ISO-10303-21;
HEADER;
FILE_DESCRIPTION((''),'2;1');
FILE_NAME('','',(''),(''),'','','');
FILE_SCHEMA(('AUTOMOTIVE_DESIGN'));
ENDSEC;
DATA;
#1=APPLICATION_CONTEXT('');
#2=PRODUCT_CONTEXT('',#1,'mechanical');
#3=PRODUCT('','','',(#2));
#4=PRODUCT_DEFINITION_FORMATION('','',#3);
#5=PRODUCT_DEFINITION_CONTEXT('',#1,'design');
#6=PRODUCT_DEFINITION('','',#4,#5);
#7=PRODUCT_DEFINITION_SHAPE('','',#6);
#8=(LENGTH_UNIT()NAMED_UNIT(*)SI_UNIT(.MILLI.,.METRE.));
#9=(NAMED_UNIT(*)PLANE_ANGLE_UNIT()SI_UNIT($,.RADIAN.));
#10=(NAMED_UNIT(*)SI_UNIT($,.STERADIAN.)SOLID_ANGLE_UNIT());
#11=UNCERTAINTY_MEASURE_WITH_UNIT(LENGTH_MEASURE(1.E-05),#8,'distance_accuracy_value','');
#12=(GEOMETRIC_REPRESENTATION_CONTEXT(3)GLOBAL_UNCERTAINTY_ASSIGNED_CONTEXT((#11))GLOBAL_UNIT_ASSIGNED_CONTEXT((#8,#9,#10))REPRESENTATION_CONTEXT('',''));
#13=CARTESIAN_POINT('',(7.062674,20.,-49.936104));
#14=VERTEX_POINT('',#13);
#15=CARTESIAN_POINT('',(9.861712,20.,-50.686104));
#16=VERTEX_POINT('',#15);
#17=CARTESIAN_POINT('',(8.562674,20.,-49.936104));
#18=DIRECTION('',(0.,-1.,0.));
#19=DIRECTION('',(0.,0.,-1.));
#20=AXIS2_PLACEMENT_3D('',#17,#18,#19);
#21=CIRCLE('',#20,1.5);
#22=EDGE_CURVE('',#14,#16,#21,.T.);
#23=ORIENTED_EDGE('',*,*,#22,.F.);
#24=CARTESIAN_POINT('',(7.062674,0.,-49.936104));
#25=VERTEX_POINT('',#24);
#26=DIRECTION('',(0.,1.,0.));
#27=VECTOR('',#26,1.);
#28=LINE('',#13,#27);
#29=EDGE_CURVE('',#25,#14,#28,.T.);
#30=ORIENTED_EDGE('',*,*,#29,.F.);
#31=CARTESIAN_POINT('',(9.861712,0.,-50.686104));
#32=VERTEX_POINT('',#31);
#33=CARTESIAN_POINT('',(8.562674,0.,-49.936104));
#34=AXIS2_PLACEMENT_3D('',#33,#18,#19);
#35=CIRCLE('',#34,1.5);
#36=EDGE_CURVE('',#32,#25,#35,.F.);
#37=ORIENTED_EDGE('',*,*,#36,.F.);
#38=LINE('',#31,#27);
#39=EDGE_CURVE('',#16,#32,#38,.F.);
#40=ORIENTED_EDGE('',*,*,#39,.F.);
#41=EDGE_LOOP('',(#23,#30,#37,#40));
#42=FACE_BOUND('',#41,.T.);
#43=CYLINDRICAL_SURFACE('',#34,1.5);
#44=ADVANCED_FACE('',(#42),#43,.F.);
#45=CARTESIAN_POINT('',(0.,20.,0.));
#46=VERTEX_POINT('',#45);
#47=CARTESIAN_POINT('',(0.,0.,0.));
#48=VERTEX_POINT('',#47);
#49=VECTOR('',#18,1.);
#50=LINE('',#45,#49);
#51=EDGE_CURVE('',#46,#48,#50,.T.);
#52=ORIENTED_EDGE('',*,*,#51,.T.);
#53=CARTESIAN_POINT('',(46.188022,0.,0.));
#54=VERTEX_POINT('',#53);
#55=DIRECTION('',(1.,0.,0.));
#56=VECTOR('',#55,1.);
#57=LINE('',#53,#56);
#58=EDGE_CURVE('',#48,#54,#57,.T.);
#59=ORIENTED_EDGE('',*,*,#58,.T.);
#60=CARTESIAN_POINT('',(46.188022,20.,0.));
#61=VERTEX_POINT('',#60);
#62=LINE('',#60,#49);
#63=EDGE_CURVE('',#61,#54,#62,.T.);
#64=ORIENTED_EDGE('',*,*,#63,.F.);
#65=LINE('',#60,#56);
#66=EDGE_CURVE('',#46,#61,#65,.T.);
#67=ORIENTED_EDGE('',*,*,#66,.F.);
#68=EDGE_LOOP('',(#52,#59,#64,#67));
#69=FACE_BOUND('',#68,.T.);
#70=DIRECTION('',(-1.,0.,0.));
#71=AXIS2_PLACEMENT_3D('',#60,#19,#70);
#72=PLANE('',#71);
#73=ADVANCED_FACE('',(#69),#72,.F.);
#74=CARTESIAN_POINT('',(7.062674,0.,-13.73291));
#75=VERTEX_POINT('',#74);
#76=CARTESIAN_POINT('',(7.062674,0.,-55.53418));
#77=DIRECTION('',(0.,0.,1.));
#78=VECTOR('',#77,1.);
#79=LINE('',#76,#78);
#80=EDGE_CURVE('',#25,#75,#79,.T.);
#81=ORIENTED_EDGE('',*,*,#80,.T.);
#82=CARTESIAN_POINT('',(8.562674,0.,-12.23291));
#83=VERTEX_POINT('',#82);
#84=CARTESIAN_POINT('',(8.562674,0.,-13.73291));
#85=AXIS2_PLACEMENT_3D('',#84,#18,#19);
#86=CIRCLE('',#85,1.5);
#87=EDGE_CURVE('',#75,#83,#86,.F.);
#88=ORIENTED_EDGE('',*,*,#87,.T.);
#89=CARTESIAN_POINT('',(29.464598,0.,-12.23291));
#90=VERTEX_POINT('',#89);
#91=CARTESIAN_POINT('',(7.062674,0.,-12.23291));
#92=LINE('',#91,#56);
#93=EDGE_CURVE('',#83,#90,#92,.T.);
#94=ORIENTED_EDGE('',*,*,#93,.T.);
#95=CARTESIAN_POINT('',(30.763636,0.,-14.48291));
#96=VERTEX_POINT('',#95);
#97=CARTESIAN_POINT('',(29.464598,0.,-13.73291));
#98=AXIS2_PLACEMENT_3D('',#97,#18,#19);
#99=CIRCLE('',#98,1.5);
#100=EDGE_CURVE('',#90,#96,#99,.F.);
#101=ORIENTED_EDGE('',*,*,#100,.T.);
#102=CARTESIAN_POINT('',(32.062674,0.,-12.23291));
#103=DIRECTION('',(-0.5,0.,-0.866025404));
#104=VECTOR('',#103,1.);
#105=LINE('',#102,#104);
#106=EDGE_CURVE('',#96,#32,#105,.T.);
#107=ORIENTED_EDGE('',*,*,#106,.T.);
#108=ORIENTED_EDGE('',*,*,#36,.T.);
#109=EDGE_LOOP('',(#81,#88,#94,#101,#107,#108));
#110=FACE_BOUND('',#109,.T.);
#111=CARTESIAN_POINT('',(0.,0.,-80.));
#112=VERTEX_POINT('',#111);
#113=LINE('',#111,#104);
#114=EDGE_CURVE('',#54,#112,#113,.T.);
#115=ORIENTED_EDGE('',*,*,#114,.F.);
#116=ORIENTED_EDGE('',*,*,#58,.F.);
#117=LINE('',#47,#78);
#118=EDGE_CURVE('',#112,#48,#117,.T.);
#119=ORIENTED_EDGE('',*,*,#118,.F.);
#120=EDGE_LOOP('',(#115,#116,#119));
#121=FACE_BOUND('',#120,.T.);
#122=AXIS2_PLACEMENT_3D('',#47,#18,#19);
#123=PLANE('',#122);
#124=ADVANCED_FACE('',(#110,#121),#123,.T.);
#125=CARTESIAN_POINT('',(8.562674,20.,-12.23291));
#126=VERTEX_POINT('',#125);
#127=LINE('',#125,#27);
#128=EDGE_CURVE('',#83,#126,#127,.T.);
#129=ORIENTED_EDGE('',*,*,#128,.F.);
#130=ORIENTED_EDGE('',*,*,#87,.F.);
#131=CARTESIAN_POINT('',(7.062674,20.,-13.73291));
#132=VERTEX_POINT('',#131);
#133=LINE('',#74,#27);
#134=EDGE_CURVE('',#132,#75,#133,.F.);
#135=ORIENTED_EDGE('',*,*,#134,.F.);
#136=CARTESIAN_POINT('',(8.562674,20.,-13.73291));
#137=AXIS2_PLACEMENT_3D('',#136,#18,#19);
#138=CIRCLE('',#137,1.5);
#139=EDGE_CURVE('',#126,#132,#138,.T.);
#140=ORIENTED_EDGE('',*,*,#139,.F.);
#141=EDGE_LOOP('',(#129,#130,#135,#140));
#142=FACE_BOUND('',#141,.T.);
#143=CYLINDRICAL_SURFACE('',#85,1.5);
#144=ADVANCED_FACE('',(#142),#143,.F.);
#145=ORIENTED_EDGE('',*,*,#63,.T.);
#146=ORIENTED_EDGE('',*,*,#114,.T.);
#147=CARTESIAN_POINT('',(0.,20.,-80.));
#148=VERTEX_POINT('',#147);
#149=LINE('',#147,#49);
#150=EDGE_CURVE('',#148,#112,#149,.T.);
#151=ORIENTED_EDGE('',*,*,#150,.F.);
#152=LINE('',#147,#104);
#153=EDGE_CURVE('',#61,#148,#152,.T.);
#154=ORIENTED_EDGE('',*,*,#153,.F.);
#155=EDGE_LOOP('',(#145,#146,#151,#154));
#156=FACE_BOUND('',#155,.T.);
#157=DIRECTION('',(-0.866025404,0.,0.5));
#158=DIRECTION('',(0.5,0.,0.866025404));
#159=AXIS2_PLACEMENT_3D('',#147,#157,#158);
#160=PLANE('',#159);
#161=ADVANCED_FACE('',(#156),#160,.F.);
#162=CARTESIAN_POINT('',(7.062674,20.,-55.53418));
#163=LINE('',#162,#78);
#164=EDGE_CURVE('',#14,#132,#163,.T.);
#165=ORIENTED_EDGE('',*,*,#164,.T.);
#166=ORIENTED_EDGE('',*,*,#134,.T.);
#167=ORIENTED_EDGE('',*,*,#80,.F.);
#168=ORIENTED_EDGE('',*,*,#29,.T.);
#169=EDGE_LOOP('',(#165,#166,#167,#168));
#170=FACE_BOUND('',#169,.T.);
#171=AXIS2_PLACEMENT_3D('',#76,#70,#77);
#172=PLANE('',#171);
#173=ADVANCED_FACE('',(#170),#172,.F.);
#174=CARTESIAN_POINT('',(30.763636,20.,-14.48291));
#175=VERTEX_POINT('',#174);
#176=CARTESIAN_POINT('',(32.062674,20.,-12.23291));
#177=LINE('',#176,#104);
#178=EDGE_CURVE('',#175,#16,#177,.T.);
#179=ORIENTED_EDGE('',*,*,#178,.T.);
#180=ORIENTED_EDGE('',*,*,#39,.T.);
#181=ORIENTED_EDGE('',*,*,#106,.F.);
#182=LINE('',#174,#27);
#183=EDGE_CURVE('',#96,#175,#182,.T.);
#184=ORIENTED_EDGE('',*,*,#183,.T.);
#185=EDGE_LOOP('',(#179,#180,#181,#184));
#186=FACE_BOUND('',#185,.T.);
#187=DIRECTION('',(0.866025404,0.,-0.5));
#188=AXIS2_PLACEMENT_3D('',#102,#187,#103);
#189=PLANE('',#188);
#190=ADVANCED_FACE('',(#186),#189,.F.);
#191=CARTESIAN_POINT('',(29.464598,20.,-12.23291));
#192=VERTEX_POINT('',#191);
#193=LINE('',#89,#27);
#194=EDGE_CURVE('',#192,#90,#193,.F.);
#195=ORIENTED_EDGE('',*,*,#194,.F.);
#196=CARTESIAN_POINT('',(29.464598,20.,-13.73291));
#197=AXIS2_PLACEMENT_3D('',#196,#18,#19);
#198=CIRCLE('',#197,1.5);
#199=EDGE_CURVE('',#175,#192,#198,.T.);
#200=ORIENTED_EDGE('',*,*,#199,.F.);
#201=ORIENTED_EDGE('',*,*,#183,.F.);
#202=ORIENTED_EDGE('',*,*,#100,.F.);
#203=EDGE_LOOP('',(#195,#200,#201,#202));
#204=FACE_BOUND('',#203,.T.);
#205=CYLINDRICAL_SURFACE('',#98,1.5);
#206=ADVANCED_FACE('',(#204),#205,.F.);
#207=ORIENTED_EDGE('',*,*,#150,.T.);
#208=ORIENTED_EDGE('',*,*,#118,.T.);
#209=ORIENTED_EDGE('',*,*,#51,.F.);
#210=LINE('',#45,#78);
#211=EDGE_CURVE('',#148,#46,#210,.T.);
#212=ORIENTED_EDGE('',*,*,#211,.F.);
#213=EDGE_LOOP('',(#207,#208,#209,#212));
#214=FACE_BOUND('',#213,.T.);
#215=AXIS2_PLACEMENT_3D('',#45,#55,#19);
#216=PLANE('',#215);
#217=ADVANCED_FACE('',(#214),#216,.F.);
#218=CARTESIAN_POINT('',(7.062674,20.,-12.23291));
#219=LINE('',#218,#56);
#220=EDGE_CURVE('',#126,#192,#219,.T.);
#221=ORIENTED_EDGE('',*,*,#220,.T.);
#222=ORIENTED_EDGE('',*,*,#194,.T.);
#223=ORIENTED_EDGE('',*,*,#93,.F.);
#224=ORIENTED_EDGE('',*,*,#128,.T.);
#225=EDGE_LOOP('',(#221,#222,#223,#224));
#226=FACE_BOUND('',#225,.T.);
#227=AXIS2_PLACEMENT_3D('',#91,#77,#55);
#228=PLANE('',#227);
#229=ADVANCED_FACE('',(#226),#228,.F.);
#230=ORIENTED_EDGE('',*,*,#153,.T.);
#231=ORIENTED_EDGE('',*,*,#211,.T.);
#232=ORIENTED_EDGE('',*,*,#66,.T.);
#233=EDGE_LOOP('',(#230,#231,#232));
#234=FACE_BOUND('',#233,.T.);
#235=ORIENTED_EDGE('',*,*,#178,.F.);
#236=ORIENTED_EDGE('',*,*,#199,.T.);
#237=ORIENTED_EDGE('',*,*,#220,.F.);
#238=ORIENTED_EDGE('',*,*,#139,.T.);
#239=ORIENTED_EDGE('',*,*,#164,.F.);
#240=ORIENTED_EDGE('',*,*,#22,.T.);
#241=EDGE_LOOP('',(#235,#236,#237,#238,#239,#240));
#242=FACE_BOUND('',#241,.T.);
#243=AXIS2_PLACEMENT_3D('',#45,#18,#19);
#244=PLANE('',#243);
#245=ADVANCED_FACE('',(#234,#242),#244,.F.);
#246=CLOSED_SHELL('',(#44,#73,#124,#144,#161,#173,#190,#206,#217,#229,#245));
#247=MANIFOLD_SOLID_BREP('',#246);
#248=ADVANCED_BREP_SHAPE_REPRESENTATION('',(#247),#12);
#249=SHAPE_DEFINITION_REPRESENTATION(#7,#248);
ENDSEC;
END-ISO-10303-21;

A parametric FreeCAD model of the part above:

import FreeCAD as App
import Part
import Sketcher
from FreeCAD import Vector
Q = App.Units.Quantity


def edges_at(feature, points):
    """Names of the edges that pass closest to the given points."""
    edges = feature.Shape.Edges
    near = lambda p: min(range(len(edges)), key=lambda i: edges[i].distToShape(Part.Vertex(*p))[0])
    return sorted({f"Edge{near(p) + 1}" for p in points})

doc = App.newDocument("Part")
body = doc.addObject("PartDesign::Body", "Body")

# Sketch on XZ plane
sketch1 = doc.addObject("Sketcher::SketchObject", "Sketch")
body.addObject(sketch1)
sketch1.AttachmentSupport = (doc.XZ_Plane, [""])
sketch1.MapMode = "FlatFace"
sketch1.addGeometry(Part.LineSegment(Vector(0, -80, 0), Vector(0, 0, 0)), False)
sketch1.addGeometry(Part.LineSegment(Vector(0, 0, 0), Vector(46, 0, 0)), False)
sketch1.addGeometry(Part.LineSegment(Vector(46, 0, 0), Vector(0, -80, 0)), False)
sketch1.addConstraint(Sketcher.Constraint("Coincident", 0, 2, 1, 1))
sketch1.addConstraint(Sketcher.Constraint("Coincident", 1, 2, 2, 1))
sketch1.addConstraint(Sketcher.Constraint("Coincident", 2, 2, 0, 1))
sketch1.addConstraint(Sketcher.Constraint("Vertical", 0))
sketch1.addConstraint(Sketcher.Constraint("Horizontal", 1))
sketch1.addConstraint(Sketcher.Constraint("Coincident", 0, 2, -1, 1))
sketch1.addConstraint(Sketcher.Constraint("DistanceY", 0, 1, 0, 2, Q("80 mm")))
sketch1.addConstraint(Sketcher.Constraint("Angle", 2, Q("-120 deg")))
pad1 = doc.addObject("PartDesign::Pad", "Pad")
body.addObject(pad1)
pad1.Profile = sketch1
pad1.Length = 20
pad1.Reversed = True

# Sketch on XZ plane
sketch2 = doc.addObject("Sketcher::SketchObject", "Sketch001")
body.addObject(sketch2)
sketch2.AttachmentSupport = (doc.XZ_Plane, [""])
sketch2.MapMode = "FlatFace"
sketch2.AttachmentOffset = App.Placement(Vector(0, 0, -20), App.Rotation())
sketch2.addGeometry(Part.LineSegment(Vector(7, -56, 0), Vector(7, -12, 0)), False)
sketch2.addGeometry(Part.LineSegment(Vector(7, -12, 0), Vector(32, -12, 0)), False)
sketch2.addGeometry(Part.LineSegment(Vector(32, -12, 0), Vector(7, -56, 0)), False)
sketch2.addConstraint(Sketcher.Constraint("Coincident", 0, 2, 1, 1))
sketch2.addConstraint(Sketcher.Constraint("Coincident", 1, 2, 2, 1))
sketch2.addConstraint(Sketcher.Constraint("Coincident", 2, 2, 0, 1))
sketch2.addConstraint(Sketcher.Constraint("Vertical", 0))
sketch2.addConstraint(Sketcher.Constraint("Horizontal", 1))
sketch2.addConstraint(Sketcher.Constraint("DistanceX", 1, 1, 1, 2, Q("25 mm")))
sketch2.addConstraint(Sketcher.Constraint("Angle", 2, Q("-120 deg")))
sketch2.addConstraint(Sketcher.Constraint("DistanceY", 0, 2, -1, 1, Q("12.23291 mm")))
sketch2.addConstraint(Sketcher.Constraint("DistanceX", -1, 1, 0, 2, Q("7.062674 mm")))
pocket1 = doc.addObject("PartDesign::Pocket", "Pocket")
body.addObject(pocket1)
pocket1.Profile = sketch2
pocket1.Type = "ThroughAll"
pocket1.Reversed = True
doc.recompute()

fillet = doc.addObject("PartDesign::Fillet", "Fillet")
body.addObject(fillet)
fillet.Base = (pocket1, edges_at(pocket1, [(7.063, 10, -55.534), (32.063, 10, -12.233), (7.063, 10, -12.233)]))
fillet.Radius = 1.5

doc.recompute()
